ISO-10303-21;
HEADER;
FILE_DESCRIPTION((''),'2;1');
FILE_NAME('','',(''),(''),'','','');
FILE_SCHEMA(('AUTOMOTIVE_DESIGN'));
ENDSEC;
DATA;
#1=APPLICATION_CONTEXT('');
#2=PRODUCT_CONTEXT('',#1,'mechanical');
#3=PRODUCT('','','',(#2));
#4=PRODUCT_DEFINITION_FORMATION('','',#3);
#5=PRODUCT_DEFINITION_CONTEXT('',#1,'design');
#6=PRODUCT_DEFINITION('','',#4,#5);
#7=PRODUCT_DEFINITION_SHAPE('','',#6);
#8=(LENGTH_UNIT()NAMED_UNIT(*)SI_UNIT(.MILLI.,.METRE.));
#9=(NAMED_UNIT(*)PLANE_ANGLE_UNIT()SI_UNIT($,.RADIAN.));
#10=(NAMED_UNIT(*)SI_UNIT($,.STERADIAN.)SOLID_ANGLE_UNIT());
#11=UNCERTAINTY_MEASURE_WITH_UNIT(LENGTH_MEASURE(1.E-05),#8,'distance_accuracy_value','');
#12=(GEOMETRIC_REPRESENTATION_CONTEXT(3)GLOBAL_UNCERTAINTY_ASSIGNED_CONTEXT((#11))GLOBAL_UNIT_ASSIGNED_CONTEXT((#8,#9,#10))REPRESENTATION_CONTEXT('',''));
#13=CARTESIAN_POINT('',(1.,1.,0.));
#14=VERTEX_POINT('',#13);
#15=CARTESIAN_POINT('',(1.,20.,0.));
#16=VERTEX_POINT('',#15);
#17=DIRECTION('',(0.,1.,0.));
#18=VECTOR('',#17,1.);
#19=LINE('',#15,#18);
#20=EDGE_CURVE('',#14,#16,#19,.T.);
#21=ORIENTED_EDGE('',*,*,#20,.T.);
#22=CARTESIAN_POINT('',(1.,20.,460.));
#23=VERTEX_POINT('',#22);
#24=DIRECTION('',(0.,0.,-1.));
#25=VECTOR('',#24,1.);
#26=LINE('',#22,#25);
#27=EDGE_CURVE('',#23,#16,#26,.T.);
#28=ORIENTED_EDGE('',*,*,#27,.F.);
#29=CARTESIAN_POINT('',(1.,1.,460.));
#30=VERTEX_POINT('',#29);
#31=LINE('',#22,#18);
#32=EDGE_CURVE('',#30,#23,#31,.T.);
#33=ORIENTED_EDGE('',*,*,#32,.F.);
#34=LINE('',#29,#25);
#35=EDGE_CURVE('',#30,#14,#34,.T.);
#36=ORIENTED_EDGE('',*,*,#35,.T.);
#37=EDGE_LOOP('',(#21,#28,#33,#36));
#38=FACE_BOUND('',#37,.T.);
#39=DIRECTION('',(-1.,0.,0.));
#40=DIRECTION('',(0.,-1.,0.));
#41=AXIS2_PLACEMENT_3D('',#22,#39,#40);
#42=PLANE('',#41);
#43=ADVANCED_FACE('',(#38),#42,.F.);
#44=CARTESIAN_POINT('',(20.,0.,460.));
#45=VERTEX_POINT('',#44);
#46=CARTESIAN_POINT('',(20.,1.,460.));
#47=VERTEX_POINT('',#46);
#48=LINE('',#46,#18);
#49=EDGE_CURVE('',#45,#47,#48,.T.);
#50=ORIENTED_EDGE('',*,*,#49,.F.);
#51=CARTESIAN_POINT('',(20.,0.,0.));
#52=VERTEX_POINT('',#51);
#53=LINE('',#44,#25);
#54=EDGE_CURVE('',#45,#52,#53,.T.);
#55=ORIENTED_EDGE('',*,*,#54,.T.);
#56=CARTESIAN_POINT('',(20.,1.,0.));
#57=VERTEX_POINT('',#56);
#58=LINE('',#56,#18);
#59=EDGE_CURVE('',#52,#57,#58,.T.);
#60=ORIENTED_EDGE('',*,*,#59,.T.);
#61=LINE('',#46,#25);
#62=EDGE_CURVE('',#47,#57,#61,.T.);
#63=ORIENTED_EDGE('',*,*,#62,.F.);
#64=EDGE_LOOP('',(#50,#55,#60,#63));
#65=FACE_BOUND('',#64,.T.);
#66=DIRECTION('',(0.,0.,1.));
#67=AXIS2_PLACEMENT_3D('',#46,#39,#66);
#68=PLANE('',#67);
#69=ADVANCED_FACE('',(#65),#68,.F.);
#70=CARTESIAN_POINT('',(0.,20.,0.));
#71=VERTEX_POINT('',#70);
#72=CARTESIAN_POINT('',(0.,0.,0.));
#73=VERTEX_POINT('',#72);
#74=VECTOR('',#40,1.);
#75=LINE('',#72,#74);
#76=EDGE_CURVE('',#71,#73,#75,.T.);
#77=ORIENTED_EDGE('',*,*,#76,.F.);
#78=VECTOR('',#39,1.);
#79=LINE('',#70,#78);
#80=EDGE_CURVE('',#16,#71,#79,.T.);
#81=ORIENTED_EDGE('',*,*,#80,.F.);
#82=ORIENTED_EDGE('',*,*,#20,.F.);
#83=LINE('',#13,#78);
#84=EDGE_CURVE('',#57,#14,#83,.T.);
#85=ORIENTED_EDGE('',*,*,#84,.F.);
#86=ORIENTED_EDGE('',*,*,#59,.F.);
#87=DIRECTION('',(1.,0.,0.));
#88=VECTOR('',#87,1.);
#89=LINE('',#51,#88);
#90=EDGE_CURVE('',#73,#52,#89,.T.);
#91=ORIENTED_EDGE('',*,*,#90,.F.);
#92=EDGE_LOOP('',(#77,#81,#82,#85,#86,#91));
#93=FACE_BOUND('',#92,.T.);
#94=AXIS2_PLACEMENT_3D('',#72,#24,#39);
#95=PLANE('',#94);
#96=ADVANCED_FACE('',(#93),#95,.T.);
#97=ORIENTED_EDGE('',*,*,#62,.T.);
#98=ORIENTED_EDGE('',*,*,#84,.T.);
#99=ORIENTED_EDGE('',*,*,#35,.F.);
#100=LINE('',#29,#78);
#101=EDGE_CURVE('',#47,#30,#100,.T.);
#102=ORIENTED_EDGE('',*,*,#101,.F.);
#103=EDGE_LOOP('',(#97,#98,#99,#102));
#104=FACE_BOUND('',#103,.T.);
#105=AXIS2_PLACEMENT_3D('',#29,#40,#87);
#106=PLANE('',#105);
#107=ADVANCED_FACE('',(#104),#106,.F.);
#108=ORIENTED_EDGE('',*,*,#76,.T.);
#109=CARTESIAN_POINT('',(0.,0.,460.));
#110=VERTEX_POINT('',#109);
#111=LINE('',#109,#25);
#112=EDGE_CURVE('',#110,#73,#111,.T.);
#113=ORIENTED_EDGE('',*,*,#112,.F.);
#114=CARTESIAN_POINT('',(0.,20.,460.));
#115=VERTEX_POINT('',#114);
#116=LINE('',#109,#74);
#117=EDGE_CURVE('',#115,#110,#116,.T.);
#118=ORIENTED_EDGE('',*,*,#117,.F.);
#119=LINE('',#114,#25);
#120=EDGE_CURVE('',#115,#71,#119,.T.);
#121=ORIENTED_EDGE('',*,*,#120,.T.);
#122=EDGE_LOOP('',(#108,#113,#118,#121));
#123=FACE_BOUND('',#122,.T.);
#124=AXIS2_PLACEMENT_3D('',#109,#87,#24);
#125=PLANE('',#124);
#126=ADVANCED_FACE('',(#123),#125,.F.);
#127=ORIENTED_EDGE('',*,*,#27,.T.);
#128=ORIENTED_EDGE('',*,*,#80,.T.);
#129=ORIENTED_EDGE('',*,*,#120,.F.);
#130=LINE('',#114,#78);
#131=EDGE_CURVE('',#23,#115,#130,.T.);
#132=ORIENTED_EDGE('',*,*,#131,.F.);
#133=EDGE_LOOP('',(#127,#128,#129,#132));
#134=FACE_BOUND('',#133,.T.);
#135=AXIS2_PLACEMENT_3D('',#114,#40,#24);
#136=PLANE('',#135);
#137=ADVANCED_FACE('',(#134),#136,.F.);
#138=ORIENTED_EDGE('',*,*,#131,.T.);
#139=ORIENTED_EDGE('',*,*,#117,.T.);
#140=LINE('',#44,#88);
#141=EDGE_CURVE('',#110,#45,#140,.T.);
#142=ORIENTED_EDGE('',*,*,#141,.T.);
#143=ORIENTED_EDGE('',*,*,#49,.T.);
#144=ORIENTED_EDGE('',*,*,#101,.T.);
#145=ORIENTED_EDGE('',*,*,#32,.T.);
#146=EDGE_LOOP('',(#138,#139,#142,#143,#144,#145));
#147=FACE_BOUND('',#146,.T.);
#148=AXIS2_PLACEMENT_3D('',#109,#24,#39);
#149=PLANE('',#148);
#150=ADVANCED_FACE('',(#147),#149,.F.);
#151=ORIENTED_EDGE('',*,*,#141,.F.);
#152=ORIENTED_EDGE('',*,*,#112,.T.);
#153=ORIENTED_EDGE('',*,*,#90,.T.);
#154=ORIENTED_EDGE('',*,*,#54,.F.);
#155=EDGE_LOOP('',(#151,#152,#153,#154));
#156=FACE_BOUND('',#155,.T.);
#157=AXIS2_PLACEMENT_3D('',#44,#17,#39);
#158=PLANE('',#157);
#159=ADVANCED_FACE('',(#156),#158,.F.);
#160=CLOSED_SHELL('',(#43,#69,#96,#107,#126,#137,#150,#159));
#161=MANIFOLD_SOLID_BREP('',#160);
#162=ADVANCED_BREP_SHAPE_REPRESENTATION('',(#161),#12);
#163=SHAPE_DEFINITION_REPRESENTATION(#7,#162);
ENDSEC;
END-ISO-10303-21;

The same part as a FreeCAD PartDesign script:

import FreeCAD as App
import Part
import Sketcher

V = App.Vector


def add_polygon(sketch, points):
    """Adds a closed chain of lines whose ends are joined by coincident constraints."""
    first, n = sketch.GeometryCount, len(points)
    for a, b in zip(points, points[1:] + points[:1]):
        sketch.addGeometry(Part.LineSegment(App.Vector(*a, 0), App.Vector(*b, 0)), False)
    for i in range(n):
        sketch.addConstraint(Sketcher.Constraint("Coincident", first + i, 2, first + (i + 1) % n, 1))

doc = App.newDocument("Part")
body = doc.addObject("PartDesign::Body", "Body")

sketch1 = body.newObject("Sketcher::SketchObject", "Sketch")
sketch1.AttachmentSupport = (doc.getObject("XY_Plane"), [""])
sketch1.MapMode = "FlatFace"
add_polygon(sketch1, [(0, 20), (0, 0), (20, 0), (20, 1), (1, 1), (1, 20)])
sketch1.addConstraint(Sketcher.Constraint("Vertical", 0))
sketch1.addConstraint(Sketcher.Constraint("Horizontal", 1))
sketch1.addConstraint(Sketcher.Constraint("Vertical", 2))
sketch1.addConstraint(Sketcher.Constraint("Horizontal", 3))
sketch1.addConstraint(Sketcher.Constraint("Vertical", 4))
sketch1.addConstraint(Sketcher.Constraint("Horizontal", 5))
sketch1.addConstraint(Sketcher.Constraint("Coincident", 0, 2, -1, 1))
sketch1.addConstraint(Sketcher.Constraint("Equal", 1, 0))
sketch1.addConstraint(Sketcher.Constraint("Equal", 5, 2))
sketch1.addConstraint(Sketcher.Constraint("DistanceX", 1, 1, 1, 2, 20.0))
sketch1.addConstraint(Sketcher.Constraint("DistanceX", 3, 2, 3, 1, 19.0))
pad1 = body.newObject("PartDesign::Pad", "Pad")
pad1.Profile = sketch1
pad1.Length = 460

doc.recompute()
